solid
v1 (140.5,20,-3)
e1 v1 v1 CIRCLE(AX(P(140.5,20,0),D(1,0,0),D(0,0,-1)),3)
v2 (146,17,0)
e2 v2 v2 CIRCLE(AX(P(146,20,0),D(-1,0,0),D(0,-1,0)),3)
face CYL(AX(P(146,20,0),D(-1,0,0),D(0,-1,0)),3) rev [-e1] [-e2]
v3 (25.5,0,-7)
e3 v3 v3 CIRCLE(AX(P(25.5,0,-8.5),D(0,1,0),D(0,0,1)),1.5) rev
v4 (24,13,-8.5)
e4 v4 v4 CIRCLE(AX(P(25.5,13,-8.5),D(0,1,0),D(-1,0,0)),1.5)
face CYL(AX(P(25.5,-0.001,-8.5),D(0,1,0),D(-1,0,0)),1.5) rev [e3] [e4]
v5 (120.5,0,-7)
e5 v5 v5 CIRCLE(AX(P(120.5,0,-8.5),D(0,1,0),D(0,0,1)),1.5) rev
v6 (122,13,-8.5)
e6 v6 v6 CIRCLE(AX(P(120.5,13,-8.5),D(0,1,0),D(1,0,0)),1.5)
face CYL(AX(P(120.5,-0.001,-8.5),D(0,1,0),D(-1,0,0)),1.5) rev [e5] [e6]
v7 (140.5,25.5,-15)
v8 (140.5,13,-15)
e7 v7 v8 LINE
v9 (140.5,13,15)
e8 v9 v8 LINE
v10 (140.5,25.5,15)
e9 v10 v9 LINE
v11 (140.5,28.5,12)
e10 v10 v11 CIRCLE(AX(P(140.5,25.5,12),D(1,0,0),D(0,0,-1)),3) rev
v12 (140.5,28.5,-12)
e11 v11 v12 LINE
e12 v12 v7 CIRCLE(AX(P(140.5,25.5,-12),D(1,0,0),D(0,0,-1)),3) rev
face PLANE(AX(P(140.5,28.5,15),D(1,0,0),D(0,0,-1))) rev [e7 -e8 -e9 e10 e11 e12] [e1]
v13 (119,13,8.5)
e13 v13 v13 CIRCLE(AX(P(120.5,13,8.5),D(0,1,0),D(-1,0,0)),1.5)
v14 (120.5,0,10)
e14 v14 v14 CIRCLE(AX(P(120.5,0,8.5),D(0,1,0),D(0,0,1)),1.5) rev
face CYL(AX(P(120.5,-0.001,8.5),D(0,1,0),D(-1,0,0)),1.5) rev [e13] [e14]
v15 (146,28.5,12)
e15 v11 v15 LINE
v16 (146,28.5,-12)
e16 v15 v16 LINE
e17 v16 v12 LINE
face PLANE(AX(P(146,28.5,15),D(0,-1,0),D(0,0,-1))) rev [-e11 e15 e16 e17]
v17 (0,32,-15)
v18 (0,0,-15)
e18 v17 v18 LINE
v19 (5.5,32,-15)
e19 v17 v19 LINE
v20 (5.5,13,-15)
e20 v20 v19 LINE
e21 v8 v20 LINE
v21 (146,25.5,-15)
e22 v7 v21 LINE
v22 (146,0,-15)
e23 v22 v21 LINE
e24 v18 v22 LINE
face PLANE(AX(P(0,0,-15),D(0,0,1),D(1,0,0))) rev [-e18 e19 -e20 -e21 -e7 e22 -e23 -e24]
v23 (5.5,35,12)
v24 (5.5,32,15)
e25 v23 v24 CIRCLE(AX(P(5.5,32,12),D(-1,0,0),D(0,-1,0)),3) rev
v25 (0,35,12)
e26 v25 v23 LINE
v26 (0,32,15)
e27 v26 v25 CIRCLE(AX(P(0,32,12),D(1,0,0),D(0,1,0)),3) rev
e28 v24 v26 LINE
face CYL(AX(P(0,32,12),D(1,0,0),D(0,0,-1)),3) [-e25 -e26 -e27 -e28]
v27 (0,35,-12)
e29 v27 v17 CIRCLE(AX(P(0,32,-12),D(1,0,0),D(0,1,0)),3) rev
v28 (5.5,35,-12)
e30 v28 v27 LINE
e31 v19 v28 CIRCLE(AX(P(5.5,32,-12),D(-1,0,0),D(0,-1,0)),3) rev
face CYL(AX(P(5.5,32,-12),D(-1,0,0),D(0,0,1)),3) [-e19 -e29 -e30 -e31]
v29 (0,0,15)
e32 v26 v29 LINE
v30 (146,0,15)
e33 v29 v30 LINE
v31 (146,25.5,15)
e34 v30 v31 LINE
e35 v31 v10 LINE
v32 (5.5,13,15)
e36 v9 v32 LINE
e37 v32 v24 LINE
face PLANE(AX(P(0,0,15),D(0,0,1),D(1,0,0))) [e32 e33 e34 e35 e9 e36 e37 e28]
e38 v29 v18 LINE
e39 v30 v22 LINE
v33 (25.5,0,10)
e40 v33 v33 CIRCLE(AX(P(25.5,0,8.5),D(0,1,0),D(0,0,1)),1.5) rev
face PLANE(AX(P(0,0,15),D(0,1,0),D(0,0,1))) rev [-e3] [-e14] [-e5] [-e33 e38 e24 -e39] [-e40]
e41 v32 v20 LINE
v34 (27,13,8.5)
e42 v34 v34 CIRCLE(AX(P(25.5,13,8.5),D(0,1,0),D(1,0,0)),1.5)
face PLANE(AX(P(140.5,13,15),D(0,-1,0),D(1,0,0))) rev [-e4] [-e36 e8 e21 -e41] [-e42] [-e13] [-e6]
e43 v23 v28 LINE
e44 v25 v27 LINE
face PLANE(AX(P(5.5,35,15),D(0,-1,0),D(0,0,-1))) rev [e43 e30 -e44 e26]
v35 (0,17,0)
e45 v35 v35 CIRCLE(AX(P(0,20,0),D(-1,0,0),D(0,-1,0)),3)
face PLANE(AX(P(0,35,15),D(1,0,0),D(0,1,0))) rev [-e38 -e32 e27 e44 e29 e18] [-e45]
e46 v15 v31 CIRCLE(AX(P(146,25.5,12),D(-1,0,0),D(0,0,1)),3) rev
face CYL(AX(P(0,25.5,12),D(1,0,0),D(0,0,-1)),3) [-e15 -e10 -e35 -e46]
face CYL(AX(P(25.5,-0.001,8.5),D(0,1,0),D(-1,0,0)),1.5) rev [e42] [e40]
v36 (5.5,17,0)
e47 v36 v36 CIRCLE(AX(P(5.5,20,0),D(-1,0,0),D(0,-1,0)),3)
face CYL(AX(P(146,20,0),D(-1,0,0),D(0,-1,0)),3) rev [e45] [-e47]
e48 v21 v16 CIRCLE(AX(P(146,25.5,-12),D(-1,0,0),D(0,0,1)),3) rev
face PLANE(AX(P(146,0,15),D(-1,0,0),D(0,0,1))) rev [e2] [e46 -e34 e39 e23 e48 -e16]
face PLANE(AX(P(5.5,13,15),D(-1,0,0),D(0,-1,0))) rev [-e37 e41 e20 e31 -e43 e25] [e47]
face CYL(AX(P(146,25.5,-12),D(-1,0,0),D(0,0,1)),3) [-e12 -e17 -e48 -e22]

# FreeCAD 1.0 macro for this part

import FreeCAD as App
import Part
import Sketcher
from FreeCAD import Vector
Q = App.Units.Quantity


def edges_at(feature, points):
    """Names of the edges that pass closest to the given points."""
    edges = feature.Shape.Edges
    near = lambda p: min(range(len(edges)), key=lambda i: edges[i].distToShape(Part.Vertex(*p))[0])
    return sorted({f"Edge{near(p) + 1}" for p in points})

doc = App.newDocument("Part")
body = doc.addObject("PartDesign::Body", "Body")

# Sketch on XY plane
sketch1 = body.newObject("Sketcher::SketchObject", "Sketch")
sketch1.AttachmentSupport = (doc.getObject("XY_Plane"), [""])
sketch1.MapMode = "FlatFace"
sketch1.addGeometry(Part.LineSegment(Vector(0, 0, 0), Vector(146, 0, 0)), False)
sketch1.addGeometry(Part.LineSegment(Vector(146, 0, 0), Vector(146, 28, 0)), False)
sketch1.addGeometry(Part.LineSegment(Vector(146, 28, 0), Vector(140, 28, 0)), False)
sketch1.addGeometry(Part.LineSegment(Vector(140, 28, 0), Vector(140, 13, 0)), False)
sketch1.addGeometry(Part.LineSegment(Vector(140, 13, 0), Vector(6, 13, 0)), False)
sketch1.addGeometry(Part.LineSegment(Vector(6, 13, 0), Vector(6, 35, 0)), False)
sketch1.addGeometry(Part.LineSegment(Vector(6, 35, 0), Vector(0, 35, 0)), False)
sketch1.addGeometry(Part.LineSegment(Vector(0, 35, 0), Vector(0, 0, 0)), False)
sketch1.addConstraint(Sketcher.Constraint("Coincident", 0, 2, 1, 1))
sketch1.addConstraint(Sketcher.Constraint("Coincident", 1, 2, 2, 1))
sketch1.addConstraint(Sketcher.Constraint("Coincident", 2, 2, 3, 1))
sketch1.addConstraint(Sketcher.Constraint("Coincident", 3, 2, 4, 1))
sketch1.addConstraint(Sketcher.Constraint("Coincident", 4, 2, 5, 1))
sketch1.addConstraint(Sketcher.Constraint("Coincident", 5, 2, 6, 1))
sketch1.addConstraint(Sketcher.Constraint("Coincident", 6, 2, 7, 1))
sketch1.addConstraint(Sketcher.Constraint("Coincident", 7, 2, 0, 1))
sketch1.addConstraint(Sketcher.Constraint("Horizontal", 0))
sketch1.addConstraint(Sketcher.Constraint("Vertical", 1))
sketch1.addConstraint(Sketcher.Constraint("Horizontal", 2))
sketch1.addConstraint(Sketcher.Constraint("Vertical", 3))
sketch1.addConstraint(Sketcher.Constraint("Horizontal", 4))
sketch1.addConstraint(Sketcher.Constraint("Vertical", 5))
sketch1.addConstraint(Sketcher.Constraint("Horizontal", 6))
sketch1.addConstraint(Sketcher.Constraint("Vertical", 7))
sketch1.addConstraint(Sketcher.Constraint("Coincident", 7, 2, -1, 1))
sketch1.addConstraint(Sketcher.Constraint("Equal", 2, 6))
sketch1.addConstraint(Sketcher.Constraint("DistanceX", 0, 1, 0, 2, Q("146 mm")))
sketch1.addConstraint(Sketcher.Constraint("DistanceX", 4, 2, 4, 1, Q("135 mm")))
sketch1.addConstraint(Sketcher.Constraint("DistanceY", 5, 1, 5, 2, Q("22 mm")))
sketch1.addConstraint(Sketcher.Constraint("DistanceY", 7, 2, 7, 1, Q("35 mm")))
sketch1.addConstraint(Sketcher.Constraint("DistanceY", 1, 1, 1, 2, Q("28.5 mm")))
pad1 = body.newObject("PartDesign::Pad", "Pad")
pad1.Profile = sketch1
pad1.Length = 30
pad1.Midplane = True

# Sketch on XZ plane
sketch2 = body.newObject("Sketcher::SketchObject", "Sketch001")
sketch2.AttachmentSupport = (doc.getObject("XZ_Plane"), [""])
sketch2.MapMode = "FlatFace"
sketch2.AttachmentOffset = App.Placement(Vector(0, 0, -13), App.Rotation())
sketch2.addGeometry(Part.Circle(Vector(25.5, -8.5, 0), Vector(0, 0, 1), 1.5), False)
sketch2.addConstraint(Sketcher.Constraint("Diameter", 0, Q("3 mm")))
sketch2.addConstraint(Sketcher.Constraint("DistanceX", -1, 1, 0, 3, Q("25.5 mm")))
sketch2.addConstraint(Sketcher.Constraint("DistanceY", 0, 3, -1, 1, Q("8.5 mm")))
pocket1 = body.newObject("PartDesign::Pocket", "Pocket")
pocket1.Profile = sketch2
pocket1.Type = "UpToFirst"
pocket1.Reversed = True

# Sketch on XZ plane
sketch3 = body.newObject("Sketcher::SketchObject", "Sketch002")
sketch3.AttachmentSupport = (doc.getObject("XZ_Plane"), [""])
sketch3.MapMode = "FlatFace"
sketch3.AttachmentOffset = App.Placement(Vector(0, 0, -13), App.Rotation())
sketch3.addGeometry(Part.Circle(Vector(120.5, -8.5, 0), Vector(0, 0, 1), 1.5), False)
sketch3.addConstraint(Sketcher.Constraint("Diameter", 0, Q("3 mm")))
sketch3.addConstraint(Sketcher.Constraint("DistanceX", -1, 1, 0, 3, Q("120.5 mm")))
sketch3.addConstraint(Sketcher.Constraint("DistanceY", 0, 3, -1, 1, Q("8.5 mm")))
pocket2 = body.newObject("PartDesign::Pocket", "Pocket001")
pocket2.Profile = sketch3
pocket2.Type = "UpToFirst"
pocket2.Reversed = True

# Sketch on XZ plane
sketch4 = body.newObject("Sketcher::SketchObject", "Sketch003")
sketch4.AttachmentSupport = (doc.getObject("XZ_Plane"), [""])
sketch4.MapMode = "FlatFace"
sketch4.AttachmentOffset = App.Placement(Vector(0, 0, -13), App.Rotation())
sketch4.addGeometry(Part.Circle(Vector(25.5, 8.5, 0), Vector(0, 0, 1), 1.5), False)
sketch4.addConstraint(Sketcher.Constraint("Diameter", 0, Q("3 mm")))
sketch4.addConstraint(Sketcher.Constraint("DistanceX", -1, 1, 0, 3, Q("25.5 mm")))
sketch4.addConstraint(Sketcher.Constraint("DistanceY", -1, 1, 0, 3, Q("8.5 mm")))
pocket3 = body.newObject("PartDesign::Pocket", "Pocket002")
pocket3.Profile = sketch4
pocket3.Type = "UpToFirst"
pocket3.Reversed = True

# Sketch on XZ plane
sketch5 = body.newObject("Sketcher::SketchObject", "Sketch004")
sketch5.AttachmentSupport = (doc.getObject("XZ_Plane"), [""])
sketch5.MapMode = "FlatFace"
sketch5.AttachmentOffset = App.Placement(Vector(0, 0, -13), App.Rotation())
sketch5.addGeometry(Part.Circle(Vector(120.5, 8.5, 0), Vector(0, 0, 1), 1.5), False)
sketch5.addConstraint(Sketcher.Constraint("Diameter", 0, Q("3 mm")))
sketch5.addConstraint(Sketcher.Constraint("DistanceX", -1, 1, 0, 3, Q("120.5 mm")))
sketch5.addConstraint(Sketcher.Constraint("DistanceY", -1, 1, 0, 3, Q("8.5 mm")))
pocket4 = body.newObject("PartDesign::Pocket", "Pocket003")
pocket4.Profile = sketch5
pocket4.Type = "UpToFirst"
pocket4.Reversed = True
doc.recompute()

fillet = body.newObject("PartDesign::Fillet", "Fillet")
fillet.Base = (pocket4, edges_at(pocket4, [
    (143.25, 28.5, -15),
    (143.25, 28.5, 15),
    (2.75, 35, 15),
    (2.75, 35, -15),
]))
fillet.Radius = 3

# Sketch on YZ plane
sketch6 = body.newObject("Sketcher::SketchObject", "Sketch005")
sketch6.AttachmentSupport = (doc.getObject("YZ_Plane"), [""])
sketch6.MapMode = "FlatFace"
sketch6.addGeometry(Part.Circle(Vector(20, 0, 0), Vector(0, 0, 1), 3), False)
sketch6.addConstraint(Sketcher.Constraint("PointOnObject", 0, 3, -1))
sketch6.addConstraint(Sketcher.Constraint("Diameter", 0, Q("6 mm")))
sketch6.addConstraint(Sketcher.Constraint("DistanceX", -1, 1, 0, 3, Q("20 mm")))
pocket5 = body.newObject("PartDesign::Pocket", "Pocket004")
pocket5.Profile = sketch6
pocket5.Type = "ThroughAll"
pocket5.Reversed = True

doc.recompute()
